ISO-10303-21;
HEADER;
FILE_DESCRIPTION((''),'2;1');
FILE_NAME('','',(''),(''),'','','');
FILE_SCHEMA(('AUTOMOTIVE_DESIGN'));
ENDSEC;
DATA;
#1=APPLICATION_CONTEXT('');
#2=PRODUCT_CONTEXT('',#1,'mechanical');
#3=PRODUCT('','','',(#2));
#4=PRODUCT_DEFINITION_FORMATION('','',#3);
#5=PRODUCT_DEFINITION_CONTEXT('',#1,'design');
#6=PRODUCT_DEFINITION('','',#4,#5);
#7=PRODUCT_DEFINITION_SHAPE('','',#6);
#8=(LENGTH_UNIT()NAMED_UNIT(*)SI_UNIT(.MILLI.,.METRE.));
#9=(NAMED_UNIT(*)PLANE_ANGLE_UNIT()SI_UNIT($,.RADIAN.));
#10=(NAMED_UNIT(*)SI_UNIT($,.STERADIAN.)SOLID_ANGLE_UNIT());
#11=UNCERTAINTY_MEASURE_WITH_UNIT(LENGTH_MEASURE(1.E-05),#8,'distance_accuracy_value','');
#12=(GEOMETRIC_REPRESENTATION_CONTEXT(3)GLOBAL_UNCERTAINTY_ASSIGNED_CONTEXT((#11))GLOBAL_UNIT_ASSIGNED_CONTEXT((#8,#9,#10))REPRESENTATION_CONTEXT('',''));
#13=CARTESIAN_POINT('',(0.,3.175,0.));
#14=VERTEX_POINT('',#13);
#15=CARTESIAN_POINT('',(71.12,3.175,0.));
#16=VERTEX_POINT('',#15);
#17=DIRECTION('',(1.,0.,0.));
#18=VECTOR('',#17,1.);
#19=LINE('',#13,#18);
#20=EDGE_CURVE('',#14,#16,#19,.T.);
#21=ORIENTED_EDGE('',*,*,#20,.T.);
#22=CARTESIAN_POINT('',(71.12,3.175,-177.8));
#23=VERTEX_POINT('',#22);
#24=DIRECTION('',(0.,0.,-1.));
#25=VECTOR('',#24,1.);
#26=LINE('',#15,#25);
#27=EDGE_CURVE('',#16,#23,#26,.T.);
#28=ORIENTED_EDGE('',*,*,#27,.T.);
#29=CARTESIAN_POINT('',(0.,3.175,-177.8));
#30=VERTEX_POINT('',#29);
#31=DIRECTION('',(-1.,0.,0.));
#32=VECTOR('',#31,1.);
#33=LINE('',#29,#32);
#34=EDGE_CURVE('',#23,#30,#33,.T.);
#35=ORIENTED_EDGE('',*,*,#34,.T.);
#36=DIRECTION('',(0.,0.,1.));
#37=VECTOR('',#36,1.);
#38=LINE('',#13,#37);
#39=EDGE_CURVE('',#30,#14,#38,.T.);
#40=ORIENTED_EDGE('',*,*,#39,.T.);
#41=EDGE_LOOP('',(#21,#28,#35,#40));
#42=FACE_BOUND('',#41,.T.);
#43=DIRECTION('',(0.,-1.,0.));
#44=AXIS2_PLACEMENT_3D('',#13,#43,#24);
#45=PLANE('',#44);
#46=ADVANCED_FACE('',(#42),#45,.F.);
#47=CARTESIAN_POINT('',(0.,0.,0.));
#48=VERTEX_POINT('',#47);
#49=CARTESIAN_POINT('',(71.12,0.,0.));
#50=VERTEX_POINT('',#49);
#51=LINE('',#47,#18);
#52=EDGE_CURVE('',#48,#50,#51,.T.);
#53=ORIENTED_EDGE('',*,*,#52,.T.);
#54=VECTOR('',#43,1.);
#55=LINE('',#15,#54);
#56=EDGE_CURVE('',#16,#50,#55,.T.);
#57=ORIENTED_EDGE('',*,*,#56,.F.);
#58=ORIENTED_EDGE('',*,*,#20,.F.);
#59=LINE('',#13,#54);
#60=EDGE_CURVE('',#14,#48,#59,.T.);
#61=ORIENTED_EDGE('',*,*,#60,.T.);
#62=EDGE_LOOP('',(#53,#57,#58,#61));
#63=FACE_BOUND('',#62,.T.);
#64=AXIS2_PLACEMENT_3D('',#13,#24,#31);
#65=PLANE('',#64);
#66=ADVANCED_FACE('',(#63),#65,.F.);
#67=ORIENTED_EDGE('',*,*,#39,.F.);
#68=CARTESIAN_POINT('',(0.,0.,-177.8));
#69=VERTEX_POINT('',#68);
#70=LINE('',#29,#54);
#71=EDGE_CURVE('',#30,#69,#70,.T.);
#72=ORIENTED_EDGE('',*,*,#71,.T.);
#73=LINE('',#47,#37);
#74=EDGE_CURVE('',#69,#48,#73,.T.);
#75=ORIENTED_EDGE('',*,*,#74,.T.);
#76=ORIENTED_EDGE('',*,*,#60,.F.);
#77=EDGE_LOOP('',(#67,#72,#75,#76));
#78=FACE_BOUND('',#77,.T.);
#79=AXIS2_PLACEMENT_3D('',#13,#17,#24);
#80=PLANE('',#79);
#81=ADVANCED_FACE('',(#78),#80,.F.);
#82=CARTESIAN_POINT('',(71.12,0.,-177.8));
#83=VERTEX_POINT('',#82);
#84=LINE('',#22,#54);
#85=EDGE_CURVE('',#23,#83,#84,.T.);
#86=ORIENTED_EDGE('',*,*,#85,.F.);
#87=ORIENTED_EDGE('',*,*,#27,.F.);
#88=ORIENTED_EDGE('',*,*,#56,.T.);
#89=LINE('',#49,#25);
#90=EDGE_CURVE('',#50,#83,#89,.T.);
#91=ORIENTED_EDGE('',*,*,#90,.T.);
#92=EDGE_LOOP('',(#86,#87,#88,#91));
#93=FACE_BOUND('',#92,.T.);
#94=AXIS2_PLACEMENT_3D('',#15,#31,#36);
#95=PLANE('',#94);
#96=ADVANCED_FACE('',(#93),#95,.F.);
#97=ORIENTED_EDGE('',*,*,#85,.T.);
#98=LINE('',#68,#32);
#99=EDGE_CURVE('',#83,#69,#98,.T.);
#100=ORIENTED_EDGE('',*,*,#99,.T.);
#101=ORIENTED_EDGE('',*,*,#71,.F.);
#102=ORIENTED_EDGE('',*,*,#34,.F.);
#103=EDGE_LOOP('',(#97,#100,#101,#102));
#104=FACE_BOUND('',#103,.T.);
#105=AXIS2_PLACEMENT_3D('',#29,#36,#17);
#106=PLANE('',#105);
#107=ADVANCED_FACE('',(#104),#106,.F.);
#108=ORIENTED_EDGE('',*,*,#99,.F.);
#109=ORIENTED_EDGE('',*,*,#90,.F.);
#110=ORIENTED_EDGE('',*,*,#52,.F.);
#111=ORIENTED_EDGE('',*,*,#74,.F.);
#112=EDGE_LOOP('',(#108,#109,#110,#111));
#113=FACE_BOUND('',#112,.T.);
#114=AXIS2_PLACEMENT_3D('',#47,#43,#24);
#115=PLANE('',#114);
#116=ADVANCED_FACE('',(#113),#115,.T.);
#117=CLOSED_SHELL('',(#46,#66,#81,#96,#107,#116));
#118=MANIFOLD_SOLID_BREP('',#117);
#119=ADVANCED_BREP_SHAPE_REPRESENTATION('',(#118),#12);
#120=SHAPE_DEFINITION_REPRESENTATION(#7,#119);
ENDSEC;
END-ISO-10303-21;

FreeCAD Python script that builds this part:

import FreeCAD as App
import Part
import Sketcher

V = App.Vector
Q = App.Units.Quantity


def add_polygon(sketch, points):
    """Adds a closed chain of lines whose ends are joined by coincident constraints."""
    first, n = sketch.GeometryCount, len(points)
    for a, b in zip(points, points[1:] + points[:1]):
        sketch.addGeometry(Part.LineSegment(App.Vector(*a, 0), App.Vector(*b, 0)), False)
    for i in range(n):
        sketch.addConstraint(Sketcher.Constraint("Coincident", first + i, 2, first + (i + 1) % n, 1))

doc = App.newDocument("Part")
body = doc.addObject("PartDesign::Body", "Body")

# Sketch on XZ plane
sketch1 = doc.addObject("Sketcher::SketchObject", "Sketch")
body.addObject(sketch1)
sketch1.AttachmentSupport = (doc.XZ_Plane, [""])
sketch1.MapMode = "FlatFace"
add_polygon(sketch1, [(0, -177.8), (0, 0), (71.12, 0), (71.12, -177.8)])  # lines 0-3
sketch1.addConstraint([
    Sketcher.Constraint("Vertical", 0),
    Sketcher.Constraint("Horizontal", 1),
    Sketcher.Constraint("Vertical", 2),
    Sketcher.Constraint("Horizontal", 3),
    Sketcher.Constraint("Coincident", 0, 2, -1, 1),
    Sketcher.Constraint("DistanceY", 0, 1, 0, 2, Q("7 in")),
    Sketcher.Constraint("DistanceX", 1, 1, 1, 2, Q("2.8 in")),
])
pad1 = doc.addObject("PartDesign::Pad", "Pad")
body.addObject(pad1)
pad1.Profile = sketch1
pad1.Length = Q("0.125 in")
pad1.Reversed = True

doc.recompute()
